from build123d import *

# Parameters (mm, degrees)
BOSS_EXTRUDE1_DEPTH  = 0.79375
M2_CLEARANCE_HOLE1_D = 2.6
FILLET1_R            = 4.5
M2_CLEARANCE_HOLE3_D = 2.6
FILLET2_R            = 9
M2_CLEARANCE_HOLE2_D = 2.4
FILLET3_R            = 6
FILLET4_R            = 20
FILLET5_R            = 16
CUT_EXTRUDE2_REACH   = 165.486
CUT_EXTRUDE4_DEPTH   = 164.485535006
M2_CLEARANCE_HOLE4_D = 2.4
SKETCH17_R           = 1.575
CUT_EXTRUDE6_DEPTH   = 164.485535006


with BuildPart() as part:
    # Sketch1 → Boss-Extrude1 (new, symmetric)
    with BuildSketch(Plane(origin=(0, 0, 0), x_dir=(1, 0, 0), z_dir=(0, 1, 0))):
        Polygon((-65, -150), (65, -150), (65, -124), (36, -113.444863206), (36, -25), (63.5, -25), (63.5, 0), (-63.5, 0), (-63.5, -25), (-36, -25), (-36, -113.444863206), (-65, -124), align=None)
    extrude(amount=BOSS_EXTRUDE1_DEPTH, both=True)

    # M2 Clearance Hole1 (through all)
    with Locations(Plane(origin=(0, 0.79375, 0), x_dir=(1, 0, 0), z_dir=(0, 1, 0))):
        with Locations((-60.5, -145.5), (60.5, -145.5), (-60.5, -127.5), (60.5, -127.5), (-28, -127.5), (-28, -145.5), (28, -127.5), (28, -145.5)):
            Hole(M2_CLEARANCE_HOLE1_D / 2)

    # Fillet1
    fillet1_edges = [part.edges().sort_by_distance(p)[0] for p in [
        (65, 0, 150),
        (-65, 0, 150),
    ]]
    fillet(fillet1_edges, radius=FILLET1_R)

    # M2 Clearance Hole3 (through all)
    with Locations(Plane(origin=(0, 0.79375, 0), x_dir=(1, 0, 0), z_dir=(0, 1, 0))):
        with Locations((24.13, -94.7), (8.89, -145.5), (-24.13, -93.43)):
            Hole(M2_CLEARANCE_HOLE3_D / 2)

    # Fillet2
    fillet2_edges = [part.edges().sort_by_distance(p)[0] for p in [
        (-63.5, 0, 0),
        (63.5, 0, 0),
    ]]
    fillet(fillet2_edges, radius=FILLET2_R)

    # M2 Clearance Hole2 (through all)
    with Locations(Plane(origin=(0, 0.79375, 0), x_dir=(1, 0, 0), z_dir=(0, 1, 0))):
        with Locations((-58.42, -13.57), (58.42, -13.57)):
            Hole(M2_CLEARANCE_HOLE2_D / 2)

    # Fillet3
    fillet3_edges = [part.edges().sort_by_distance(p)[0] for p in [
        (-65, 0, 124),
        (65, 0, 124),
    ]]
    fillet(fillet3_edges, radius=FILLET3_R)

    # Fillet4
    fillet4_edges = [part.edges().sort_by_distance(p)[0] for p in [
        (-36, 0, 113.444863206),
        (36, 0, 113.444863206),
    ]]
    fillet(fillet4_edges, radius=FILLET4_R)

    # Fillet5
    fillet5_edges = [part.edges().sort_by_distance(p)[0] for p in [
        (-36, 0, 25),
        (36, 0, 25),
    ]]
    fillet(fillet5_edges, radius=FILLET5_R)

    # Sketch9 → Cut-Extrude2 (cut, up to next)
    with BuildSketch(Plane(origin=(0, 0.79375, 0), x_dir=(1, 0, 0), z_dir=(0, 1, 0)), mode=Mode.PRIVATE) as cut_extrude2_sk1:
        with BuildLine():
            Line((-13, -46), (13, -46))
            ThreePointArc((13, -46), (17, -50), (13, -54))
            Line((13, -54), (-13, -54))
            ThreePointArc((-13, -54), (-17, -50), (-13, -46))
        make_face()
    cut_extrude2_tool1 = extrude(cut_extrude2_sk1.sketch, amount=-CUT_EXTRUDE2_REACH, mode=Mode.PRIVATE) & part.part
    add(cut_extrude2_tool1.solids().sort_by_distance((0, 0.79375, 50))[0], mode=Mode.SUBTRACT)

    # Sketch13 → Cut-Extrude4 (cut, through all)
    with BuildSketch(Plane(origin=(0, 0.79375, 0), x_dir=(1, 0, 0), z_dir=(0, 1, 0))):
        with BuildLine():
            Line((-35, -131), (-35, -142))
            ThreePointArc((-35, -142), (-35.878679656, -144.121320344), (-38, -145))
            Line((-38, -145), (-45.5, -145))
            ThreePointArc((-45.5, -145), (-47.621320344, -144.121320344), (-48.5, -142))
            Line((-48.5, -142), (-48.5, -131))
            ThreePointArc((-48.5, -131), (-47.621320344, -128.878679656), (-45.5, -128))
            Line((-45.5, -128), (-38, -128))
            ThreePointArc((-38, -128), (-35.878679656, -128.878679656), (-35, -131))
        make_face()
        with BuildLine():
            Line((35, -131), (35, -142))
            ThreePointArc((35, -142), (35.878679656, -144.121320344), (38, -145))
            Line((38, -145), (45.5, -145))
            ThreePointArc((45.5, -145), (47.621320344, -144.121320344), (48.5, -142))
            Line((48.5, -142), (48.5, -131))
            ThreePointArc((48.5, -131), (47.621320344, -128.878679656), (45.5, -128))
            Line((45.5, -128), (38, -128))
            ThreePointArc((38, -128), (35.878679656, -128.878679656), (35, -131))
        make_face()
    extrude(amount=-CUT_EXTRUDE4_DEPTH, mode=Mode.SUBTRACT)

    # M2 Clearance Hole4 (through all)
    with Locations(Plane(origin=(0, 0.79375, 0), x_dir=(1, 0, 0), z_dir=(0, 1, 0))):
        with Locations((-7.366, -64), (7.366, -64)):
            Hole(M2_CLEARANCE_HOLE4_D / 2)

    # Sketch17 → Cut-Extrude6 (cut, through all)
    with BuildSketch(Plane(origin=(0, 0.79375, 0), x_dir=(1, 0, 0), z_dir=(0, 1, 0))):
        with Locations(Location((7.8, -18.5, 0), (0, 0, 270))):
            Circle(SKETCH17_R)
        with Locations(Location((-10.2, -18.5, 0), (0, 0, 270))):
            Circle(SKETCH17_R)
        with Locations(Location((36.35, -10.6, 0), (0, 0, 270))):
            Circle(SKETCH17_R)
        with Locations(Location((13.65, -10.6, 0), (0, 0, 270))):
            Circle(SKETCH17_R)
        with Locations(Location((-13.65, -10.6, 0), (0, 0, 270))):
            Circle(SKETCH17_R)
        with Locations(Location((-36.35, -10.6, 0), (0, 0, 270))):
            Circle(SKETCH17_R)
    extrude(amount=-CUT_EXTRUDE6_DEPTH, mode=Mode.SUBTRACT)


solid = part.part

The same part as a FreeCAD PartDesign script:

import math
import FreeCAD as App
import Part
import Sketcher
from FreeCAD import Vector
Q = App.Units.Quantity


def edges_at(feature, points):
    """Names of the edges that pass closest to the given points."""
    edges = feature.Shape.Edges
    near = lambda p: min(range(len(edges)), key=lambda i: edges[i].distToShape(Part.Vertex(*p))[0])
    return sorted({f"Edge{near(p) + 1}" for p in points})

doc = App.newDocument("Part")
body = doc.addObject("PartDesign::Body", "Body")

sketch1 = body.newObject("Sketcher::SketchObject", "Sketch")
sketch1.AttachmentSupport = (doc.getObject("XZ_Plane"), [""])
sketch1.MapMode = "FlatFace"
sketch1.addGeometry([
    Part.LineSegment(Vector(-65, 150, 0), Vector(65, 150, 0)),
    Part.LineSegment(Vector(65, 150, 0), Vector(65, 124, 0)),
    Part.LineSegment(Vector(65, 124, 0), Vector(36, 113.444863, 0)),
    Part.LineSegment(Vector(36, 113.444863, 0), Vector(36, 25, 0)),
    Part.LineSegment(Vector(36, 25, 0), Vector(63.5, 25, 0)),
    Part.LineSegment(Vector(63.5, 25, 0), Vector(63.5, 0, 0)),
    Part.LineSegment(Vector(63.5, 0, 0), Vector(-63.5, 0, 0)),
    Part.LineSegment(Vector(-63.5, 0, 0), Vector(-63.5, 25, 0)),
    Part.LineSegment(Vector(-63.5, 25, 0), Vector(-36, 25, 0)),
    Part.LineSegment(Vector(-36, 25, 0), Vector(-36, 113.444863, 0)),
    Part.LineSegment(Vector(-36, 113.444863, 0), Vector(-65, 124, 0)),
    Part.LineSegment(Vector(-65, 124, 0), Vector(-65, 150, 0)),
], False)
sketch1.addConstraint([
    Sketcher.Constraint("Coincident", 0, 2, 1, 1),
    Sketcher.Constraint("Coincident", 1, 2, 2, 1),
    Sketcher.Constraint("Coincident", 2, 2, 3, 1),
    Sketcher.Constraint("Coincident", 3, 2, 4, 1),
    Sketcher.Constraint("Coincident", 4, 2, 5, 1),
    Sketcher.Constraint("Coincident", 5, 2, 6, 1),
    Sketcher.Constraint("Coincident", 6, 2, 7, 1),
    Sketcher.Constraint("Coincident", 7, 2, 8, 1),
    Sketcher.Constraint("Coincident", 8, 2, 9, 1),
    Sketcher.Constraint("Coincident", 9, 2, 10, 1),
    Sketcher.Constraint("Coincident", 10, 2, 11, 1),
    Sketcher.Constraint("Coincident", 11, 2, 0, 1),
    Sketcher.Constraint("Horizontal", 0),
    Sketcher.Constraint("Vertical", 1),
    Sketcher.Constraint("Vertical", 3),
    Sketcher.Constraint("Horizontal", 4),
    Sketcher.Constraint("Vertical", 5),
    Sketcher.Constraint("Horizontal", 6),
    Sketcher.Constraint("Vertical", 7),
    Sketcher.Constraint("Horizontal", 8),
    Sketcher.Constraint("Vertical", 9),
    Sketcher.Constraint("Vertical", 11),
    Sketcher.Constraint("Symmetric", 5, 2, 6, 2, -1, 1),
    Sketcher.Constraint("Symmetric", 3, 2, 8, 2, -2),
    Sketcher.Constraint("Symmetric", 1, 2, 10, 2, -2),
    Sketcher.Constraint("Horizontal", 2, 2, 9, 2),
    Sketcher.Constraint("DistanceX", 0, 1, 0, 2, 130.0),
    Sketcher.Constraint("DistanceX", 6, 2, 6, 1, 127.0),
    Sketcher.Constraint("DistanceY", 1, 2, 1, 1, 26.0),
    Sketcher.Constraint("DistanceY", 5, 2, 5, 1, 25.0),
    Sketcher.Constraint("Angle", 2, Q("-160 deg")),
    Sketcher.Constraint("DistanceX", 4, 1, 4, 2, 27.5),
    Sketcher.Constraint("DistanceY", -1, 1, 0, 2, 150.0),
])
pad1 = body.newObject("PartDesign::Pad", "Pad")
pad1.Profile = sketch1
pad1.Length = 1.5875
pad1.Midplane = True

sketch2 = body.newObject("Sketcher::SketchObject", "Sketch001")
sketch2.AttachmentSupport = (doc.getObject("XZ_Plane"), [""])
sketch2.MapMode = "FlatFace"
sketch2.AttachmentOffset = App.Placement(Vector(0, 0, -0.79375), App.Rotation())
sketch2.addGeometry([
    Part.Circle(Vector(-60.5, 145.5, 0), Vector(0, 0, 1), 1.3),
    Part.Circle(Vector(60.5, 145.5, 0), Vector(0, 0, 1), 1.3),
    Part.Circle(Vector(-60.5, 127.5, 0), Vector(0, 0, 1), 1.3),
    Part.Circle(Vector(60.5, 127.5, 0), Vector(0, 0, 1), 1.3),
    Part.Circle(Vector(-28, 127.5, 0), Vector(0, 0, 1), 1.3),
    Part.Circle(Vector(-28, 145.5, 0), Vector(0, 0, 1), 1.3),
    Part.Circle(Vector(28, 127.5, 0), Vector(0, 0, 1), 1.3),
    Part.Circle(Vector(28, 145.5, 0), Vector(0, 0, 1), 1.3),
], False)
sketch2.addConstraint([
    Sketcher.Constraint("Equal", 0, 1),
    Sketcher.Constraint("Equal", 1, 2),
    Sketcher.Constraint("Equal", 2, 3),
    Sketcher.Constraint("Equal", 3, 4),
    Sketcher.Constraint("Equal", 4, 5),
    Sketcher.Constraint("Equal", 5, 6),
    Sketcher.Constraint("Equal", 6, 7),
    Sketcher.Constraint("Symmetric", 0, 3, 1, 3, -2),
    Sketcher.Constraint("Symmetric", 2, 3, 3, 3, -2),
    Sketcher.Constraint("Symmetric", 4, 3, 6, 3, -2),
    Sketcher.Constraint("Symmetric", 5, 3, 7, 3, -2),
    Sketcher.Constraint("Horizontal", 3, 3, 4, 3),
    Sketcher.Constraint("Horizontal", 1, 3, 5, 3),
    Sketcher.Constraint("Vertical", 0, 3, 2, 3),
    Sketcher.Constraint("Vertical", 4, 3, 5, 3),
    Sketcher.Constraint("Diameter", 0, 2.6),
    Sketcher.Constraint("DistanceX", 4, 3, -1, 1, 28.0),
    Sketcher.Constraint("DistanceX", 0, 3, 1, 3, 121.0),
    Sketcher.Constraint("DistanceY", 2, 3, 0, 3, 18.0),
    Sketcher.Constraint("DistanceY", -1, 1, 0, 3, 145.5),
])
doc.recompute()
hole = body.newObject("PartDesign::Hole", "Hole")
hole.Profile = sketch2
hole.ThreadType = "None"
hole.Diameter = 2.6
hole.DepthType = "ThroughAll"
hole.Reversed = True
doc.recompute()

fillet = body.newObject("PartDesign::Fillet", "Fillet")
fillet.Base = (hole, edges_at(hole, [(65, 0, 150), (-65, 0, 150)]))
fillet.Radius = 4.5

sketch3 = body.newObject("Sketcher::SketchObject", "Sketch002")
sketch3.AttachmentSupport = (doc.getObject("XZ_Plane"), [""])
sketch3.MapMode = "FlatFace"
sketch3.AttachmentOffset = App.Placement(Vector(0, 0, -0.79375), App.Rotation())
sketch3.addGeometry([
    Part.Circle(Vector(24.13, 94.7, 0), Vector(0, 0, 1), 1.3),
    Part.Circle(Vector(8.89, 145.5, 0), Vector(0, 0, 1), 1.3),
    Part.Circle(Vector(-24.13, 93.43, 0), Vector(0, 0, 1), 1.3),
], False)
sketch3.addConstraint([
    Sketcher.Constraint("Equal", 0, 1),
    Sketcher.Constraint("Equal", 1, 2),
    Sketcher.Constraint("Diameter", 0, 2.6),
    Sketcher.Constraint("DistanceY", -1, 1, 0, 3, 94.7),
    Sketcher.Constraint("DistanceY", -1, 1, 1, 3, 145.5),
    Sketcher.Constraint("DistanceX", -1, 1, 0, 3, 24.13),
    Sketcher.Constraint("DistanceX", -1, 1, 1, 3, 8.89),
    Sketcher.Constraint("DistanceX", 2, 3, -1, 1, 24.13),
    Sketcher.Constraint("DistanceY", -1, 1, 2, 3, 93.43),
])
doc.recompute()
hole2 = body.newObject("PartDesign::Hole", "Hole001")
hole2.Profile = sketch3
hole2.ThreadType = "None"
hole2.Diameter = 2.6
hole2.DepthType = "ThroughAll"
hole2.Reversed = True
doc.recompute()

fillet2 = body.newObject("PartDesign::Fillet", "Fillet001")
fillet2.Base = (hole2, edges_at(hole2, [(-63.5, 0, 0), (63.5, 0, 0)]))
fillet2.Radius = 9

sketch4 = body.newObject("Sketcher::SketchObject", "Sketch003")
sketch4.AttachmentSupport = (doc.getObject("XZ_Plane"), [""])
sketch4.MapMode = "FlatFace"
sketch4.AttachmentOffset = App.Placement(Vector(0, 0, -0.79375), App.Rotation())
sketch4.addGeometry([
    Part.Circle(Vector(-58.42, 13.57, 0), Vector(0, 0, 1), 1.2),
    Part.Circle(Vector(58.42, 13.57, 0), Vector(0, 0, 1), 1.2),
], False)
sketch4.addConstraint([
    Sketcher.Constraint("Equal", 0, 1),
    Sketcher.Constraint("Symmetric", 0, 3, 1, 3, -2),
    Sketcher.Constraint("Diameter", 0, 2.4),
    Sketcher.Constraint("DistanceX", 0, 3, -1, 1, 58.42),
    Sketcher.Constraint("DistanceY", -1, 1, 0, 3, 13.57),
])
doc.recompute()
hole3 = body.newObject("PartDesign::Hole", "Hole002")
hole3.Profile = sketch4
hole3.ThreadType = "None"
hole3.Diameter = 2.4
hole3.DepthType = "ThroughAll"
hole3.Reversed = True
doc.recompute()

fillet3 = body.newObject("PartDesign::Fillet", "Fillet002")
fillet3.Base = (hole3, edges_at(hole3, [(-65, 0, 124), (65, 0, 124)]))
fillet3.Radius = 6
doc.recompute()

fillet4 = body.newObject("PartDesign::Fillet", "Fillet003")
fillet4.Base = (fillet3, edges_at(fillet3, [(-36, 0, 113.445), (36, 0, 113.445)]))
fillet4.Radius = 20
doc.recompute()

fillet5 = body.newObject("PartDesign::Fillet", "Fillet004")
fillet5.Base = (fillet4, edges_at(fillet4, [(-36, 0, 25), (36, 0, 25)]))
fillet5.Radius = 16

sketch5 = body.newObject("Sketcher::SketchObject", "Sketch004")
sketch5.AttachmentSupport = (doc.getObject("XZ_Plane"), [""])
sketch5.MapMode = "FlatFace"
sketch5.AttachmentOffset = App.Placement(Vector(0, 0, -0.79375), App.Rotation())
sketch5.addGeometry([
    Part.LineSegment(Vector(13, 46, 0), Vector(-13, 46, 0)),
    Part.ArcOfCircle(Part.Circle(Vector(-13, 50, 0), Vector(0, 0, 1), 4), math.radians(90), math.radians(270)),
    Part.LineSegment(Vector(-13, 54, 0), Vector(13, 54, 0)),
    Part.ArcOfCircle(Part.Circle(Vector(13, 50, 0), Vector(0, 0, 1), 4), math.radians(-90), math.radians(90)),
], False)
sketch5.addConstraint([
    Sketcher.Constraint("Tangent", 0, 2, 1, 2),
    Sketcher.Constraint("Tangent", 1, 1, 2, 1),
    Sketcher.Constraint("Tangent", 2, 2, 3, 2),
    Sketcher.Constraint("Tangent", 3, 1, 0, 1),
    Sketcher.Constraint("Horizontal", 0),
    Sketcher.Constraint("Horizontal", 2),
    Sketcher.Constraint("Radius", 1, 4.0),
    Sketcher.Constraint("DistanceX", 0, 2, 0, 1, 26.0),
    Sketcher.Constraint("DistanceX", 1, 3, -1, 1, 13.0),
    Sketcher.Constraint("DistanceY", -1, 1, 1, 3, 50.0),
])
pocket1 = body.newObject("PartDesign::Pocket", "Pocket")
pocket1.Profile = sketch5
pocket1.Type = "UpToFirst"
pocket1.Reversed = True

sketch6 = body.newObject("Sketcher::SketchObject", "Sketch005")
sketch6.AttachmentSupport = (doc.getObject("XZ_Plane"), [""])
sketch6.MapMode = "FlatFace"
sketch6.AttachmentOffset = App.Placement(Vector(0, 0, -0.79375), App.Rotation())
sketch6.addGeometry([
    Part.LineSegment(Vector(-35, 142, 0), Vector(-35, 131, 0)),
    Part.ArcOfCircle(Part.Circle(Vector(-38, 131, 0), Vector(0, 0, 1), 3), math.radians(-90), math.radians(0)),
    Part.LineSegment(Vector(-38, 128, 0), Vector(-45.5, 128, 0)),
    Part.ArcOfCircle(Part.Circle(Vector(-45.5, 131, 0), Vector(0, 0, 1), 3), math.radians(180), math.radians(270)),
    Part.LineSegment(Vector(-48.5, 131, 0), Vector(-48.5, 142, 0)),
    Part.ArcOfCircle(Part.Circle(Vector(-45.5, 142, 0), Vector(0, 0, 1), 3), math.radians(90), math.radians(180)),
    Part.LineSegment(Vector(-45.5, 145, 0), Vector(-38, 145, 0)),
    Part.ArcOfCircle(Part.Circle(Vector(-38, 142, 0), Vector(0, 0, 1), 3), math.radians(0), math.radians(90)),
    Part.LineSegment(Vector(35, 131, 0), Vector(35, 142, 0)),
    Part.ArcOfCircle(Part.Circle(Vector(38, 142, 0), Vector(0, 0, 1), 3), math.radians(90), math.radians(180)),
    Part.LineSegment(Vector(38, 145, 0), Vector(45.5, 145, 0)),
    Part.ArcOfCircle(Part.Circle(Vector(45.5, 142, 0), Vector(0, 0, 1), 3), math.radians(0), math.radians(90)),
    Part.LineSegment(Vector(48.5, 142, 0), Vector(48.5, 131, 0)),
    Part.ArcOfCircle(Part.Circle(Vector(45.5, 131, 0), Vector(0, 0, 1), 3), math.radians(-90), math.radians(0)),
    Part.LineSegment(Vector(45.5, 128, 0), Vector(38, 128, 0)),
    Part.ArcOfCircle(Part.Circle(Vector(38, 131, 0), Vector(0, 0, 1), 3), math.radians(180), math.radians(270)),
], False)
sketch6.addConstraint([
    Sketcher.Constraint("Tangent", 0, 2, 1, 2),
    Sketcher.Constraint("Tangent", 1, 1, 2, 1),
    Sketcher.Constraint("Tangent", 2, 2, 3, 2),
    Sketcher.Constraint("Tangent", 3, 1, 4, 1),
    Sketcher.Constraint("Tangent", 4, 2, 5, 2),
    Sketcher.Constraint("Tangent", 5, 1, 6, 1),
    Sketcher.Constraint("Tangent", 6, 2, 7, 2),
    Sketcher.Constraint("Tangent", 7, 1, 0, 1),
    Sketcher.Constraint("Tangent", 8, 2, 9, 2),
    Sketcher.Constraint("Tangent", 9, 1, 10, 1),
    Sketcher.Constraint("Tangent", 10, 2, 11, 2),
    Sketcher.Constraint("Tangent", 11, 1, 12, 1),
    Sketcher.Constraint("Tangent", 12, 2, 13, 2),
    Sketcher.Constraint("Tangent", 13, 1, 14, 1),
    Sketcher.Constraint("Tangent", 14, 2, 15, 2),
    Sketcher.Constraint("Tangent", 15, 1, 8, 1),
    Sketcher.Constraint("Vertical", 0),
    Sketcher.Constraint("Horizontal", 2),
    Sketcher.Constraint("Vertical", 4),
    Sketcher.Constraint("Horizontal", 6),
    Sketcher.Constraint("Vertical", 8),
    Sketcher.Constraint("Horizontal", 10),
    Sketcher.Constraint("Vertical", 12),
    Sketcher.Constraint("Horizontal", 14),
    Sketcher.Constraint("Equal", 1, 3),
    Sketcher.Constraint("Equal", 3, 5),
    Sketcher.Constraint("Equal", 5, 7),
    Sketcher.Constraint("Equal", 7, 9),
    Sketcher.Constraint("Equal", 9, 11),
    Sketcher.Constraint("Equal", 11, 13),
    Sketcher.Constraint("Equal", 13, 15),
    Sketcher.Constraint("Symmetric", 7, 3, 9, 3, -2),
    Sketcher.Constraint("Symmetric", 3, 3, 13, 3, -2),
    Sketcher.Constraint("Radius", 1, 3.0),
    Sketcher.Constraint("DistanceY", 0, 2, 0, 1, 11.0),
    Sketcher.Constraint("DistanceX", 2, 2, 2, 1, 7.5),
    Sketcher.Constraint("DistanceX", 1, 3, -1, 1, 38.0),
    Sketcher.Constraint("DistanceY", -1, 1, 1, 3, 131.0),
])
pocket2 = body.newObject("PartDesign::Pocket", "Pocket001")
pocket2.Profile = sketch6
pocket2.Type = "ThroughAll"
pocket2.Reversed = True

sketch7 = body.newObject("Sketcher::SketchObject", "Sketch006")
sketch7.AttachmentSupport = (doc.getObject("XZ_Plane"), [""])
sketch7.MapMode = "FlatFace"
sketch7.AttachmentOffset = App.Placement(Vector(0, 0, -0.79375), App.Rotation())
sketch7.addGeometry([
    Part.Circle(Vector(-7.366, 64, 0), Vector(0, 0, 1), 1.2),
    Part.Circle(Vector(7.366, 64, 0), Vector(0, 0, 1), 1.2),
], False)
sketch7.addConstraint([
    Sketcher.Constraint("Equal", 0, 1),
    Sketcher.Constraint("Symmetric", 0, 3, 1, 3, -2),
    Sketcher.Constraint("Diameter", 0, 2.4),
    Sketcher.Constraint("DistanceY", -1, 1, 0, 3, 64.0),
    Sketcher.Constraint("DistanceX", 0, 3, -1, 1, 7.366),
])
doc.recompute()
hole4 = body.newObject("PartDesign::Hole", "Hole003")
hole4.Profile = sketch7
hole4.ThreadType = "None"
hole4.Diameter = 2.4
hole4.DepthType = "ThroughAll"
hole4.Reversed = True

sketch8 = body.newObject("Sketcher::SketchObject", "Sketch007")
sketch8.AttachmentSupport = (doc.getObject("XZ_Plane"), [""])
sketch8.MapMode = "FlatFace"
sketch8.AttachmentOffset = App.Placement(Vector(0, 0, -0.79375), App.Rotation())
sketch8.addGeometry([
    Part.Circle(Vector(7.8, 18.5, 0), Vector(0, 0, 1), 1.575),
    Part.Circle(Vector(-10.2, 18.5, 0), Vector(0, 0, 1), 1.575),
    Part.Circle(Vector(36.35, 10.6, 0), Vector(0, 0, 1), 1.575),
    Part.Circle(Vector(13.65, 10.6, 0), Vector(0, 0, 1), 1.575),
    Part.Circle(Vector(-13.65, 10.6, 0), Vector(0, 0, 1), 1.575),
    Part.Circle(Vector(-36.35, 10.6, 0), Vector(0, 0, 1), 1.575),
], False)
sketch8.addConstraint([
    Sketcher.Constraint("Equal", 0, 1),
    Sketcher.Constraint("Equal", 1, 2),
    Sketcher.Constraint("Equal", 2, 3),
    Sketcher.Constraint("Equal", 3, 4),
    Sketcher.Constraint("Equal", 4, 5),
    Sketcher.Constraint("Symmetric", 3, 3, 4, 3, -2),
    Sketcher.Constraint("Symmetric", 2, 3, 5, 3, -2),
    Sketcher.Constraint("Horizontal", 0, 3, 1, 3),
    Sketcher.Constraint("Horizontal", 2, 3, 3, 3),
    Sketcher.Constraint("Diameter", 0, 3.15),
    Sketcher.Constraint("DistanceX", 1, 3, 0, 3, 18.0),
    Sketcher.Constraint("DistanceX", 4, 3, 2, 3, 50.0),
    Sketcher.Constraint("DistanceX", -1, 1, 0, 3, 7.8),
    Sketcher.Constraint("DistanceY", -1, 1, 0, 3, 18.5),
    Sketcher.Constraint("DistanceY", -1, 1, 2, 3, 10.6),
    Sketcher.Constraint("DistanceX", 3, 3, 2, 3, 22.7),
])
pocket3 = body.newObject("PartDesign::Pocket", "Pocket002")
pocket3.Profile = sketch8
pocket3.Type = "ThroughAll"
pocket3.Reversed = True

doc.recompute()
